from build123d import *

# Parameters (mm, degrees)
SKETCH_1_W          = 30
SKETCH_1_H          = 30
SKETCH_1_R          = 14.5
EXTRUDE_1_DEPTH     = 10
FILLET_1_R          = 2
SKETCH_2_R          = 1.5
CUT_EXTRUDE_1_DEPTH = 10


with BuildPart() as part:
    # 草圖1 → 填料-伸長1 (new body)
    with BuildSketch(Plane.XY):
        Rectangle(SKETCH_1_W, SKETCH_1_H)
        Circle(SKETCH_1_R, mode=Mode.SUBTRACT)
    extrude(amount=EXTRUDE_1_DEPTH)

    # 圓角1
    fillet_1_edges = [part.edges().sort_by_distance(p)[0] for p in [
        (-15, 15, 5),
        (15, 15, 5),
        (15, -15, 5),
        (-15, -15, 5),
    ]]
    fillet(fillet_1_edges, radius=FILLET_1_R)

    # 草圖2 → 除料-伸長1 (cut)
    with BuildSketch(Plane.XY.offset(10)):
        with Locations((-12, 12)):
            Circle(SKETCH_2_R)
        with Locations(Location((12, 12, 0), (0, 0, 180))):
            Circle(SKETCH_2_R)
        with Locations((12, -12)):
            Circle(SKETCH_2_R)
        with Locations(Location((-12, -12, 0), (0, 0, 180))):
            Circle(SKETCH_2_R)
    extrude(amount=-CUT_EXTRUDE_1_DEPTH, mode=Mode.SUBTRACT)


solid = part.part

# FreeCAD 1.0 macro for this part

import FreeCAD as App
import Part
import Sketcher

V = App.Vector
Q = App.Units.Quantity


def edges_at(feature, points):
    """Names of the edges that pass closest to the given points."""
    edges = feature.Shape.Edges
    near = lambda p: min(range(len(edges)), key=lambda i: edges[i].distToShape(Part.Vertex(*p))[0])
    return sorted({f"Edge{near(p) + 1}" for p in points})


def add_polygon(sketch, points):
    """Adds a closed chain of lines whose ends are joined by coincident constraints."""
    first, n = sketch.GeometryCount, len(points)
    for a, b in zip(points, points[1:] + points[:1]):
        sketch.addGeometry(Part.LineSegment(App.Vector(*a, 0), App.Vector(*b, 0)), False)
    for i in range(n):
        sketch.addConstraint(Sketcher.Constraint("Coincident", first + i, 2, first + (i + 1) % n, 1))

doc = App.newDocument("Part")
body = doc.addObject("PartDesign::Body", "Body")

# Sketch on XY plane
sketch1 = body.newObject("Sketcher::SketchObject", "Sketch")
sketch1.AttachmentSupport = (doc.getObject("XY_Plane"), [""])
sketch1.MapMode = "FlatFace"
add_polygon(sketch1, [(-15, 15), (-15, -15), (15, -15), (15, 15)])  # lines 0-3
sketch1.addGeometry(Part.Circle(V(0, 0, 0), V(0, 0, 1), 14.5), False)  # 4
sketch1.addConstraint([
    Sketcher.Constraint("Vertical", 0),
    Sketcher.Constraint("Horizontal", 1),
    Sketcher.Constraint("Vertical", 2),
    Sketcher.Constraint("Horizontal", 3),
    Sketcher.Constraint("Coincident", 4, 3, -1, 1),
    Sketcher.Constraint("Symmetric", 0, 2, 2, 2, -1, 1),
    Sketcher.Constraint("Equal", 3, 0),
    Sketcher.Constraint("Diameter", 4, Q("29 mm")),
    Sketcher.Constraint("DistanceX", 1, 1, 1, 2, Q("30 mm")),
])
pad1 = body.newObject("PartDesign::Pad", "Pad")
pad1.Profile = sketch1
pad1.Length = 10
doc.recompute()

fillet = body.newObject("PartDesign::Fillet", "Fillet")
fillet.Base = (pad1, edges_at(pad1, [
    (-15, 15, 5),
    (15, 15, 5),
    (15, -15, 5),
    (-15, -15, 5),
]))
fillet.Radius = 2

# Sketch on XY plane
sketch2 = body.newObject("Sketcher::SketchObject", "Sketch001")
sketch2.AttachmentSupport = (doc.getObject("XY_Plane"), [""])
sketch2.MapMode = "FlatFace"
sketch2.AttachmentOffset = App.Placement(V(0, 0, 10), App.Rotation())
sketch2.addGeometry([
    Part.Circle(V(-12, 12, 0), V(0, 0, 1), 1.5),
    Part.Circle(V(12, 12, 0), V(0, 0, 1), 1.5),
    Part.Circle(V(12, -12, 0), V(0, 0, 1), 1.5),
    Part.Circle(V(-12, -12, 0), V(0, 0, 1), 1.5),
], False)
sketch2.addConstraint([
    Sketcher.Constraint("Equal", 0, 1),
    Sketcher.Constraint("Equal", 1, 2),
    Sketcher.Constraint("Equal", 2, 3),
    Sketcher.Constraint("Symmetric", 0, 3, 2, 3, -1, 1),
    Sketcher.Constraint("Symmetric", 1, 3, 3, 3, -1, 1),
    Sketcher.Constraint("Symmetric", 0, 3, 1, 3, -2),
    Sketcher.Constraint("Diameter", 0, Q("3 mm")),
    Sketcher.Constraint("DistanceX", 0, 3, -1, 1, Q("12 mm")),
    Sketcher.Constraint("DistanceY", -1, 1, 0, 3, Q("12 mm")),
])
pocket1 = body.newObject("PartDesign::Pocket", "Pocket")
pocket1.Profile = sketch2
pocket1.Length = 10

doc.recompute()
